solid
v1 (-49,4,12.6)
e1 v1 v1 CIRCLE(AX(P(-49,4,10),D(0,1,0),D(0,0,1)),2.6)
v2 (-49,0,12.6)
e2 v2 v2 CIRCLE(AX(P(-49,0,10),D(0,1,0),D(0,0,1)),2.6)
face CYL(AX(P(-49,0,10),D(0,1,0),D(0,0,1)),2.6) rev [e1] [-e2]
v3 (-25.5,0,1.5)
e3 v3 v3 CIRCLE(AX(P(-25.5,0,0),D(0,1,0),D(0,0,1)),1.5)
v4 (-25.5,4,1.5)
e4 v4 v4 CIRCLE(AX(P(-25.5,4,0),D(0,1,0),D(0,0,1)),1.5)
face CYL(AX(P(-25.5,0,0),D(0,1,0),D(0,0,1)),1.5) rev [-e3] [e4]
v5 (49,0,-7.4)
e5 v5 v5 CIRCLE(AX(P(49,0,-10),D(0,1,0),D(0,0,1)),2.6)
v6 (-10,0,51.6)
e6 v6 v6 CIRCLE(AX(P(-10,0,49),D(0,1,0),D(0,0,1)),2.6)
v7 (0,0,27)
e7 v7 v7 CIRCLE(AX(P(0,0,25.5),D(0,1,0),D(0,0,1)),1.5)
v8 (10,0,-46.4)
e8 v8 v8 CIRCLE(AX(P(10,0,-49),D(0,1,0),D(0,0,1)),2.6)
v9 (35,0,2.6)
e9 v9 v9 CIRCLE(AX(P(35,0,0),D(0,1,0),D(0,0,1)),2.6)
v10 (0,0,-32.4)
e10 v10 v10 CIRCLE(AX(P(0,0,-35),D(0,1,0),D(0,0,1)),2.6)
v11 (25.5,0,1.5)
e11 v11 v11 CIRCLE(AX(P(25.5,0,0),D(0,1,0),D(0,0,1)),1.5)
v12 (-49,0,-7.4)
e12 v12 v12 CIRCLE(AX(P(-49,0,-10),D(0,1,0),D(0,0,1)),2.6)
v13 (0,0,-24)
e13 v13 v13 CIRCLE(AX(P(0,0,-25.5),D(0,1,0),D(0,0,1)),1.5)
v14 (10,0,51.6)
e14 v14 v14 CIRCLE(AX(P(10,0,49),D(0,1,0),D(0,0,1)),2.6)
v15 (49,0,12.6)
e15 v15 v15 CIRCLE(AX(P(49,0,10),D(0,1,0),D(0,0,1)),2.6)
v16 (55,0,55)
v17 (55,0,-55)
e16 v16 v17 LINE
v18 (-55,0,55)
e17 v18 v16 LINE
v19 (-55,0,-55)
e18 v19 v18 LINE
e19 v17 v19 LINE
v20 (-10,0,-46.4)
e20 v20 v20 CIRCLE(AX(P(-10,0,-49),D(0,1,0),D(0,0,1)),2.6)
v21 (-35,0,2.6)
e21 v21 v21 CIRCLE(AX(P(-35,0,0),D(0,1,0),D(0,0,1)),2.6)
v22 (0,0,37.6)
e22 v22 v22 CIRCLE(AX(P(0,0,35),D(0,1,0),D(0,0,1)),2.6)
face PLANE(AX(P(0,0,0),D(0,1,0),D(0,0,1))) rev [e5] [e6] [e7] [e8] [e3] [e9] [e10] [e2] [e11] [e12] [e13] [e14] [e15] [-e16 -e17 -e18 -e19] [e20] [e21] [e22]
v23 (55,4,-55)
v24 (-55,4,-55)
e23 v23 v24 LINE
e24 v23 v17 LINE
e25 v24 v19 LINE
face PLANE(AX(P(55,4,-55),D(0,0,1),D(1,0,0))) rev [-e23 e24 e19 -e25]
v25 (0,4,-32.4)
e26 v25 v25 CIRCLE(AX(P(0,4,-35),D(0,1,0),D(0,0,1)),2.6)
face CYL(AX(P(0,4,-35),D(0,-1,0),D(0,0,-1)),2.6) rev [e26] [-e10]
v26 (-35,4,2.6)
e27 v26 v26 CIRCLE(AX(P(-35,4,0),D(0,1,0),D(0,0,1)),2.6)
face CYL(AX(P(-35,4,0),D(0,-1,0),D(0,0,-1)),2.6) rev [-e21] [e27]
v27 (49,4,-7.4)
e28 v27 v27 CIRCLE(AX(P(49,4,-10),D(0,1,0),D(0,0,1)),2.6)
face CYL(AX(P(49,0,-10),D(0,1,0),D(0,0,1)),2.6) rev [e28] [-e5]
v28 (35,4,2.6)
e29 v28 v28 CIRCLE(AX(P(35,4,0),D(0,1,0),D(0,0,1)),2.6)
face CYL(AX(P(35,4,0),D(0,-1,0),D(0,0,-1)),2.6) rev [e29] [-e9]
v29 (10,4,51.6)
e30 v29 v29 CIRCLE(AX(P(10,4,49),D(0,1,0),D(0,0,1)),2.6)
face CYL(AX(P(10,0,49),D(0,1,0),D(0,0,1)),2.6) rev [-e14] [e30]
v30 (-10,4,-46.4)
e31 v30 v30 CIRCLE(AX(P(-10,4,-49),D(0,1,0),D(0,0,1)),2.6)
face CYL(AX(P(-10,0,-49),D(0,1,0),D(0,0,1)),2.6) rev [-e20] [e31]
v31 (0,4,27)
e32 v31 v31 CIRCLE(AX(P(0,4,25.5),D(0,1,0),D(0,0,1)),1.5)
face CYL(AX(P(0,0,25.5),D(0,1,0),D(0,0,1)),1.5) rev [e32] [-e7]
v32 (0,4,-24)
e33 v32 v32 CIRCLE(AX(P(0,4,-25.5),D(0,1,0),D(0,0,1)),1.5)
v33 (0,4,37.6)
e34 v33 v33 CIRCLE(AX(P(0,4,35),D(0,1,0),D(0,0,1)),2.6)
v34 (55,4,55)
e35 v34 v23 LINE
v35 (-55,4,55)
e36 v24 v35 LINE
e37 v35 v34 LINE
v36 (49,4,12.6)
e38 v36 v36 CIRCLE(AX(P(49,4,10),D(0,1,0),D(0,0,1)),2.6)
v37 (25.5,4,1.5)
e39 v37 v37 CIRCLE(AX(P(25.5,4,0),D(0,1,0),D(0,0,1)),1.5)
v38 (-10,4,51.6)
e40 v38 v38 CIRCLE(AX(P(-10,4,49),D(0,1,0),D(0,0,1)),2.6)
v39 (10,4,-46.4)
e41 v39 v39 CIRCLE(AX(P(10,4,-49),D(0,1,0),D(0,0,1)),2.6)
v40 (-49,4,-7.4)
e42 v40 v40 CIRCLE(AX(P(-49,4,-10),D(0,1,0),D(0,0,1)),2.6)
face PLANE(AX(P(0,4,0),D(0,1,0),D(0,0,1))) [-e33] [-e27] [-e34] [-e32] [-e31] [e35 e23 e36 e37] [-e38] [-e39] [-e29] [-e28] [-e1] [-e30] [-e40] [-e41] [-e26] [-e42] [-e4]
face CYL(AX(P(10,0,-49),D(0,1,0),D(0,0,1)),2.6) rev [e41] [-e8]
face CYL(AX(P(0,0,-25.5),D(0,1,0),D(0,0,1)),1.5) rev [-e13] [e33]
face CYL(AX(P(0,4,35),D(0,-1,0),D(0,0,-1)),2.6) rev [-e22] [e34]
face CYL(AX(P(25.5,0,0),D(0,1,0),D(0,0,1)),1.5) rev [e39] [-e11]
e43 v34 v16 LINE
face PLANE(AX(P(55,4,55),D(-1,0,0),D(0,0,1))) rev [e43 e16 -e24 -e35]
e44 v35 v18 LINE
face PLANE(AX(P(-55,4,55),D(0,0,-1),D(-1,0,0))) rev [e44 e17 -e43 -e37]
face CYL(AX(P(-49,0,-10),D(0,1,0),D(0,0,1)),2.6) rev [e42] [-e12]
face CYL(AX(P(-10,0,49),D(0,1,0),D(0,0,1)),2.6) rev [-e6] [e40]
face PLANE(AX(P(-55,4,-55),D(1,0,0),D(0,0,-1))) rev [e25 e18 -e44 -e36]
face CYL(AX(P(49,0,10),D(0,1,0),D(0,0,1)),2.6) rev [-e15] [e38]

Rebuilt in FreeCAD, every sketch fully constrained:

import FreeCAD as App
import Part
import Sketcher
from FreeCAD import Vector
Q = App.Units.Quantity


def add_polygon(sketch, points):
    """Adds a closed chain of lines whose ends are joined by coincident constraints."""
    first, n = sketch.GeometryCount, len(points)
    for a, b in zip(points, points[1:] + points[:1]):
        sketch.addGeometry(Part.LineSegment(App.Vector(*a, 0), App.Vector(*b, 0)), False)
    for i in range(n):
        sketch.addConstraint(Sketcher.Constraint("Coincident", first + i, 2, first + (i + 1) % n, 1))

doc = App.newDocument("Part")
body = doc.addObject("PartDesign::Body", "Body")

# Sketch on XZ plane
sketch1 = body.newObject("Sketcher::SketchObject", "Sketch")
sketch1.AttachmentSupport = (doc.getObject("XZ_Plane"), [""])
sketch1.MapMode = "FlatFace"
add_polygon(sketch1, [(-55, -55), (-55, 55), (55, 55), (55, -55)])  # lines 0-3
sketch1.addConstraint(Sketcher.Constraint("Vertical", 0))
sketch1.addConstraint(Sketcher.Constraint("Horizontal", 1))
sketch1.addConstraint(Sketcher.Constraint("Vertical", 2))
sketch1.addConstraint(Sketcher.Constraint("Horizontal", 3))
sketch1.addConstraint(Sketcher.Constraint("Symmetric", 0, 2, 2, 2, -1, 1))
sketch1.addConstraint(Sketcher.Constraint("Equal", 3, 0))
sketch1.addConstraint(Sketcher.Constraint("DistanceX", 1, 1, 1, 2, Q("110 mm")))
pad1 = body.newObject("PartDesign::Pad", "Pad")
pad1.Profile = sketch1
pad1.Length = 4
pad1.Reversed = True

# Sketch on XZ plane
sketch2 = body.newObject("Sketcher::SketchObject", "Sketch001")
sketch2.AttachmentSupport = (doc.getObject("XZ_Plane"), [""])
sketch2.MapMode = "FlatFace"
sketch2.addGeometry(Part.Circle(Vector(0, -35, 0), Vector(0, 0, 1), 2.6), False)
sketch2.addGeometry(Part.Circle(Vector(35, 0, 0), Vector(0, 0, 1), 2.6), False)
sketch2.addGeometry(Part.Circle(Vector(0, 35, 0), Vector(0, 0, 1), 2.6), False)
sketch2.addGeometry(Part.Circle(Vector(-35, 0, 0), Vector(0, 0, 1), 2.6), False)
sketch2.addConstraint(Sketcher.Constraint("Equal", 0, 1))
sketch2.addConstraint(Sketcher.Constraint("Equal", 1, 2))
sketch2.addConstraint(Sketcher.Constraint("Equal", 2, 3))
sketch2.addConstraint(Sketcher.Constraint("Symmetric", 0, 3, 2, 3, -1, 1))
sketch2.addConstraint(Sketcher.Constraint("Symmetric", 1, 3, 3, 3, -1, 1))
sketch2.addConstraint(Sketcher.Constraint("PointOnObject", 0, 3, -2))
sketch2.addConstraint(Sketcher.Constraint("PointOnObject", 1, 3, -1))
sketch2.addConstraint(Sketcher.Constraint("Diameter", 0, Q("5.2 mm")))
sketch2.addConstraint(Sketcher.Constraint("DistanceY", 0, 3, -1, 1, Q("35 mm")))
sketch2.addConstraint(Sketcher.Constraint("DistanceX", -1, 1, 1, 3, Q("35 mm")))
pocket1 = body.newObject("PartDesign::Pocket", "Pocket")
pocket1.Profile = sketch2
pocket1.Type = "ThroughAll"

# Sketch on XZ plane
sketch3 = body.newObject("Sketcher::SketchObject", "Sketch002")
sketch3.AttachmentSupport = (doc.getObject("XZ_Plane"), [""])
sketch3.MapMode = "FlatFace"
sketch3.AttachmentOffset = App.Placement(Vector(0, 0, -4), App.Rotation())
sketch3.addGeometry(Part.Circle(Vector(0, -25.5, 0), Vector(0, 0, 1), 1.5), False)
sketch3.addGeometry(Part.Circle(Vector(25.5, 0, 0), Vector(0, 0, 1), 1.5), False)
sketch3.addGeometry(Part.Circle(Vector(0, 25.5, 0), Vector(0, 0, 1), 1.5), False)
sketch3.addGeometry(Part.Circle(Vector(-25.5, 0, 0), Vector(0, 0, 1), 1.5), False)
sketch3.addConstraint(Sketcher.Constraint("Equal", 0, 1))
sketch3.addConstraint(Sketcher.Constraint("Equal", 1, 2))
sketch3.addConstraint(Sketcher.Constraint("Equal", 2, 3))
sketch3.addConstraint(Sketcher.Constraint("Symmetric", 0, 3, 2, 3, -1, 1))
sketch3.addConstraint(Sketcher.Constraint("Symmetric", 1, 3, 3, 3, -1, 1))
sketch3.addConstraint(Sketcher.Constraint("PointOnObject", 0, 3, -2))
sketch3.addConstraint(Sketcher.Constraint("PointOnObject", 1, 3, -1))
sketch3.addConstraint(Sketcher.Constraint("Diameter", 0, Q("3 mm")))
sketch3.addConstraint(Sketcher.Constraint("DistanceY", 0, 3, 2, 3, Q("51 mm")))
sketch3.addConstraint(Sketcher.Constraint("DistanceX", 3, 3, 1, 3, Q("51 mm")))
pocket2 = body.newObject("PartDesign::Pocket", "Pocket001")
pocket2.Profile = sketch3
pocket2.Type = "ThroughAll"
pocket2.Reversed = True

# Sketch on XZ plane
sketch4 = body.newObject("Sketcher::SketchObject", "Sketch003")
sketch4.AttachmentSupport = (doc.getObject("XZ_Plane"), [""])
sketch4.MapMode = "FlatFace"
sketch4.AttachmentOffset = App.Placement(Vector(0, 0, -4), App.Rotation())
sketch4.addGeometry(Part.Circle(Vector(-10, -49, 0), Vector(0, 0, 1), 2.6), False)
sketch4.addGeometry(Part.Circle(Vector(10, -49, 0), Vector(0, 0, 1), 2.6), False)
sketch4.addGeometry(Part.Circle(Vector(49, -10, 0), Vector(0, 0, 1), 2.6), False)
sketch4.addGeometry(Part.Circle(Vector(49, 10, 0), Vector(0, 0, 1), 2.6), False)
sketch4.addGeometry(Part.Circle(Vector(10, 49, 0), Vector(0, 0, 1), 2.6), False)
sketch4.addGeometry(Part.Circle(Vector(-10, 49, 0), Vector(0, 0, 1), 2.6), False)
sketch4.addGeometry(Part.Circle(Vector(-49, 10, 0), Vector(0, 0, 1), 2.6), False)
sketch4.addGeometry(Part.Circle(Vector(-49, -10, 0), Vector(0, 0, 1), 2.6), False)
sketch4.addConstraint(Sketcher.Constraint("Equal", 0, 1))
sketch4.addConstraint(Sketcher.Constraint("Equal", 1, 2))
sketch4.addConstraint(Sketcher.Constraint("Equal", 2, 3))
sketch4.addConstraint(Sketcher.Constraint("Equal", 3, 4))
sketch4.addConstraint(Sketcher.Constraint("Equal", 4, 5))
sketch4.addConstraint(Sketcher.Constraint("Equal", 5, 6))
sketch4.addConstraint(Sketcher.Constraint("Equal", 6, 7))
sketch4.addConstraint(Sketcher.Constraint("Symmetric", 0, 3, 4, 3, -1, 1))
sketch4.addConstraint(Sketcher.Constraint("Symmetric", 1, 3, 5, 3, -1, 1))
sketch4.addConstraint(Sketcher.Constraint("Symmetric", 2, 3, 6, 3, -1, 1))
sketch4.addConstraint(Sketcher.Constraint("Symmetric", 3, 3, 7, 3, -1, 1))
sketch4.addConstraint(Sketcher.Constraint("Symmetric", 0, 3, 1, 3, -2))
sketch4.addConstraint(Sketcher.Constraint("Symmetric", 3, 3, 6, 3, -2))
sketch4.addConstraint(Sketcher.Constraint("Diameter", 0, Q("5.2 mm")))
sketch4.addConstraint(Sketcher.Constraint("DistanceX", 0, 3, -1, 1, Q("10 mm")))
sketch4.addConstraint(Sketcher.Constraint("DistanceY", 0, 3, -1, 1, Q("49 mm")))
sketch4.addConstraint(Sketcher.Constraint("DistanceX", -1, 1, 2, 3, Q("49 mm")))
sketch4.addConstraint(Sketcher.Constraint("DistanceY", 2, 3, -1, 1, Q("10 mm")))
pocket3 = body.newObject("PartDesign::Pocket", "Pocket002")
pocket3.Profile = sketch4
pocket3.Type = "ThroughAll"
pocket3.Reversed = True

doc.recompute()
